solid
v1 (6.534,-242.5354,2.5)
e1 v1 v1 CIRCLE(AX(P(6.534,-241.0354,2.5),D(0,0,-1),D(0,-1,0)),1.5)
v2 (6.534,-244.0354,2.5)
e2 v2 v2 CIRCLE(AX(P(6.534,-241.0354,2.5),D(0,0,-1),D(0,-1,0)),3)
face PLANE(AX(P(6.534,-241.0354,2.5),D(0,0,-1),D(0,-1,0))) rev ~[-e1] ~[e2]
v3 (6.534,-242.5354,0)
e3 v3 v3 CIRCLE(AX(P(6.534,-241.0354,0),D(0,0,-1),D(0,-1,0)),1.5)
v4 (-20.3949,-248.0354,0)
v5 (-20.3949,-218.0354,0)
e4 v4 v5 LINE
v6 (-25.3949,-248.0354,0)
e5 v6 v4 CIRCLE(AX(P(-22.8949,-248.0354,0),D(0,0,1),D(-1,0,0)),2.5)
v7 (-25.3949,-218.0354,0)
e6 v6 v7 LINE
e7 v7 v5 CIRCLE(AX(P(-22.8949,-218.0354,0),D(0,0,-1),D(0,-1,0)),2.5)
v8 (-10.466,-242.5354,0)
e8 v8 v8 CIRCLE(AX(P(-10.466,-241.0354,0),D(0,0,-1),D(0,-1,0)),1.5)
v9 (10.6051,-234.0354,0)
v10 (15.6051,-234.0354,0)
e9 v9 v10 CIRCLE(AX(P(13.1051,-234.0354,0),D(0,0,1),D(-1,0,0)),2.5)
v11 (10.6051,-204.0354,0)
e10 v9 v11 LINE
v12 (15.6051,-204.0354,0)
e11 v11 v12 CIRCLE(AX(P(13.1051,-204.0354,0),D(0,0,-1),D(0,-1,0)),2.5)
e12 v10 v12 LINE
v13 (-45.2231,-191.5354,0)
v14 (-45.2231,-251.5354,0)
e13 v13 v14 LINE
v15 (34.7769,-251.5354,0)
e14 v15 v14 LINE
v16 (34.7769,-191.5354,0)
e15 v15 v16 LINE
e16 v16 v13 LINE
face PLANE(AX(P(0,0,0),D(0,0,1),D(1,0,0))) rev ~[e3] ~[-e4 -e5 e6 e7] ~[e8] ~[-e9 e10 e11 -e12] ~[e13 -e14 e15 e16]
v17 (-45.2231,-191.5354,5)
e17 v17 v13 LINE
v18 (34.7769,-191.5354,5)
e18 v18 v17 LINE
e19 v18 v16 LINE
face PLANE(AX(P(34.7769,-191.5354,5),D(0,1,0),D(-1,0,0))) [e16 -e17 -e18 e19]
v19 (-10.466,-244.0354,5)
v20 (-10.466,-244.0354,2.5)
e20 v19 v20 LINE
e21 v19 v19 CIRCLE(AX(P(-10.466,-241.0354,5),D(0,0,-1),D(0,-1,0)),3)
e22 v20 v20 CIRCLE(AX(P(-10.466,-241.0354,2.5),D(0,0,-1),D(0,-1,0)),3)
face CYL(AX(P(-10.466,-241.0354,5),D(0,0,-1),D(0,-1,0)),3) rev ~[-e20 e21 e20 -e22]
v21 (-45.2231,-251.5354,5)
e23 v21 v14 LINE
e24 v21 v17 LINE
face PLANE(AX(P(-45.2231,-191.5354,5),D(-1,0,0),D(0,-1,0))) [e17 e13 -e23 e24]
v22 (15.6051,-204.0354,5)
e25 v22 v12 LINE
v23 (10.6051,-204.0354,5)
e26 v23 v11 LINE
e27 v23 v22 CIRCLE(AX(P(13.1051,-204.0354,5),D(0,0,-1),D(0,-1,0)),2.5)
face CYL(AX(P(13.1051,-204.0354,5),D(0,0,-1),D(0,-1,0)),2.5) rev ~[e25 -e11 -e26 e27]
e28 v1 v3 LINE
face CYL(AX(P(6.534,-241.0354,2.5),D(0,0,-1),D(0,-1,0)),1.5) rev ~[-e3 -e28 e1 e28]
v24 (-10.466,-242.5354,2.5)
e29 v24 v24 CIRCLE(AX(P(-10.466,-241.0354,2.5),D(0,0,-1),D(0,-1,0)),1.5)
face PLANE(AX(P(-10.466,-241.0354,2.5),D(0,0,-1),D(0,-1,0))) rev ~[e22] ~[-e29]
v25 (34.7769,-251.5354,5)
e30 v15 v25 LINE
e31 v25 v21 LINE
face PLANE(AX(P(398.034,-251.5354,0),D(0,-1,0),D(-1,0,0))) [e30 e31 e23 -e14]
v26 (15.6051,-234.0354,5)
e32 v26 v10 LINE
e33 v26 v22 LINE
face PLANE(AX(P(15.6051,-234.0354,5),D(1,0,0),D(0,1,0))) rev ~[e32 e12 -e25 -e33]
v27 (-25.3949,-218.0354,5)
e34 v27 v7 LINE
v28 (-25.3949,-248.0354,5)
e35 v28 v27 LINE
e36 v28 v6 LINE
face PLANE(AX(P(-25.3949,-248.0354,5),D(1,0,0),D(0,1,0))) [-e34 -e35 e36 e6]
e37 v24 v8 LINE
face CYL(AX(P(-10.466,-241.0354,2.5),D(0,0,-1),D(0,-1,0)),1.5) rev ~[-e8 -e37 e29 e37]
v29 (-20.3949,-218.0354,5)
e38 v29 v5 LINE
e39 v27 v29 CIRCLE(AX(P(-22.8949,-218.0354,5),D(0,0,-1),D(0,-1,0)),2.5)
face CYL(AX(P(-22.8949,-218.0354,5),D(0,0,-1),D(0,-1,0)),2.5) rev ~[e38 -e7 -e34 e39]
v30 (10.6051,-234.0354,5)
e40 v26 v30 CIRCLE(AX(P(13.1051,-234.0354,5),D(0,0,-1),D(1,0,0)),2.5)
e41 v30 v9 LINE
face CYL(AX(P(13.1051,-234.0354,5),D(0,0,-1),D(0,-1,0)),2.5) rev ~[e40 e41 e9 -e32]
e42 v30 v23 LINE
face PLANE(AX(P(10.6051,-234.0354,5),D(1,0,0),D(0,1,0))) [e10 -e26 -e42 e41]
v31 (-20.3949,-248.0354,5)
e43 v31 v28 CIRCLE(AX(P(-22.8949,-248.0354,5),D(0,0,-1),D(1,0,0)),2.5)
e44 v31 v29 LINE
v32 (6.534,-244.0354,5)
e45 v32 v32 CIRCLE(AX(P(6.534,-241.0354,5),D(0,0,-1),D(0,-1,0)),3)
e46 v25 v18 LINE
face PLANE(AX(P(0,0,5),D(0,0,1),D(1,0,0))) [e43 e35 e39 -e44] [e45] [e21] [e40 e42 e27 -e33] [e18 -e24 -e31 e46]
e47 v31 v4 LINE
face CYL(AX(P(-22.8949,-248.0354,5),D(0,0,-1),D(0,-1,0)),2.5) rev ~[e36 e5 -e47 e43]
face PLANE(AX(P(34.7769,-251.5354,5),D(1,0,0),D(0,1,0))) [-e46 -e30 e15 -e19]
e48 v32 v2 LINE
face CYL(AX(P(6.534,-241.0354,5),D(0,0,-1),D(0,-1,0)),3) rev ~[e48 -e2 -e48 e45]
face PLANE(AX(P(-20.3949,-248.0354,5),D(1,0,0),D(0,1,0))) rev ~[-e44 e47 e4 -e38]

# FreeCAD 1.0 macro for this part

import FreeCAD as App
import Part
import Sketcher
from FreeCAD import Vector
Q = App.Units.Quantity


def add_polygon(sketch, points):
    """Adds a closed chain of lines whose ends are joined by coincident constraints."""
    first, n = sketch.GeometryCount, len(points)
    for a, b in zip(points, points[1:] + points[:1]):
        sketch.addGeometry(Part.LineSegment(App.Vector(*a, 0), App.Vector(*b, 0)), False)
    for i in range(n):
        sketch.addConstraint(Sketcher.Constraint("Coincident", first + i, 2, first + (i + 1) % n, 1))

doc = App.newDocument("Part")
params = doc.addObject("Spreadsheet::Sheet", "Params")
for row, (alias, value) in enumerate([
    ("sketch1_width", "800 mm"),
    ("sketch1_height", "500 mm"),
    ("pad1_length", "5 mm"),
    ("sketch2_diameter", "3 mm"),
    ("hole_diameter", "3 mm"),
    ("hole_depth", "5 mm"),
    ("hole_cbore_diameter", "6 mm"),
    ("hole_cbore_depth", "2.5 mm"),
    ("sketch3_diameter", "5 mm"),
    ("hole2_diameter", "5 mm"),
    ("hole2_depth", "15 mm"),
    ("sketch4_height", "30 mm"),
    ("sketch4_width", "5 mm"),
    ("pocket1_length", "15 mm"),
    ("sketch5_diameter", "5 mm"),
    ("hole3_diameter", "5 mm"),
    ("hole3_depth", "15 mm"),
    ("sketch6_width", "80 mm"),
    ("pocket2_length", "15 mm"),
], start=1):
    params.set(f"A{row}", alias)
    params.set(f"B{row}", "=" + value)
    params.setAlias(f"B{row}", alias)

body = doc.addObject("PartDesign::Body", "Body")

sketch1 = doc.addObject("Sketcher::SketchObject", "Sketch")
body.addObject(sketch1)
sketch1.AttachmentSupport = (doc.XY_Plane, [""])
sketch1.MapMode = "FlatFace"
add_polygon(sketch1, [(398, 248), (-402, 248), (-402, -252), (398, -252)])
sketch1.addConstraint([
    Sketcher.Constraint("Horizontal", 0),
    Sketcher.Constraint("Vertical", 1),
    Sketcher.Constraint("Horizontal", 2),
    Sketcher.Constraint("Vertical", 3),
    Sketcher.Constraint("DistanceX", 0, 2, 0, 1, Q("800 mm")),
    Sketcher.Constraint("DistanceY", 1, 2, 1, 1, Q("500 mm")),
    Sketcher.Constraint("DistanceX", 0, 2, -1, 1, Q("401.966 mm")),
    Sketcher.Constraint("DistanceY", -1, 1, 0, 2, Q("248.4646 mm")),
])
sketch1.setExpression("Constraints[8]", "Params.sketch1_width")
sketch1.setExpression("Constraints[9]", "Params.sketch1_height")
pad1 = doc.addObject("PartDesign::Pad", "Pad")
body.addObject(pad1)
pad1.Profile = sketch1
pad1.setExpression("Length", "Params.pad1_length")

sketch2 = doc.addObject("Sketcher::SketchObject", "Sketch001")
body.addObject(sketch2)
sketch2.AttachmentSupport = (doc.XY_Plane, [""])
sketch2.MapMode = "FlatFace"
sketch2.AttachmentOffset = App.Placement(Vector(0, 0, 5), App.Rotation())
sketch2.addGeometry([
    Part.Circle(Vector(6.5, -241, 0), Vector(0, 0, 1), 1.5),
    Part.Circle(Vector(-10.5, -241, 0), Vector(0, 0, 1), 1.5),
], False)
sketch2.addConstraint([
    Sketcher.Constraint("Equal", 0, 1),
    Sketcher.Constraint("Horizontal", 0, 3, 1, 3),
    Sketcher.Constraint("Diameter", 0, Q("3 mm")),
    Sketcher.Constraint("DistanceX", 1, 3, 0, 3, Q("17 mm")),
    Sketcher.Constraint("DistanceX", -1, 1, 0, 3, Q("6.534 mm")),
    Sketcher.Constraint("DistanceY", 0, 3, -1, 1, Q("241.0354 mm")),
])
sketch2.setExpression("Constraints[2]", "Params.sketch2_diameter")
doc.recompute()
hole = doc.addObject("PartDesign::Hole", "Hole")
body.addObject(hole)
hole.Profile = sketch2
hole.ThreadType = "None"
hole.setExpression("Diameter", "Params.hole_diameter")
hole.DepthType = "Dimension"
hole.setExpression("Depth", "Params.hole_depth")
hole.DrillPoint = "Angled"
hole.DrillPointAngle = 118
hole.HoleCutType = "Counterbore"
hole.setExpression("HoleCutDiameter", "Params.hole_cbore_diameter")
hole.setExpression("HoleCutDepth", "Params.hole_cbore_depth")

sketch3 = doc.addObject("Sketcher::SketchObject", "Sketch002")
body.addObject(sketch3)
sketch3.AttachmentSupport = (doc.XY_Plane, [""])
sketch3.MapMode = "FlatFace"
sketch3.AttachmentOffset = App.Placement(Vector(0, 0, 5), App.Rotation())
sketch3.addGeometry([
    Part.Circle(Vector(-22.9, -248, 0), Vector(0, 0, 1), 2.5),
    Part.Circle(Vector(13.1, -234, 0), Vector(0, 0, 1), 2.5),
], False)
sketch3.addConstraint([
    Sketcher.Constraint("Equal", 0, 1),
    Sketcher.Constraint("Diameter", 0, Q("5 mm")),
    Sketcher.Constraint("DistanceX", 0, 3, 1, 3, Q("36 mm")),
    Sketcher.Constraint("DistanceY", 0, 3, 1, 3, Q("14 mm")),
    Sketcher.Constraint("DistanceX", 0, 3, -1, 1, Q("22.895 mm")),
    Sketcher.Constraint("DistanceY", 0, 3, -1, 1, Q("248.0354 mm")),
])
sketch3.setExpression("Constraints[1]", "Params.sketch3_diameter")
doc.recompute()
hole2 = doc.addObject("PartDesign::Hole", "Hole001")
body.addObject(hole2)
hole2.Profile = sketch3
hole2.ThreadType = "None"
hole2.setExpression("Diameter", "Params.hole2_diameter")
hole2.DepthType = "Dimension"
hole2.setExpression("Depth", "Params.hole2_depth")
hole2.DrillPoint = "Angled"
hole2.DrillPointAngle = 118

sketch4 = doc.addObject("Sketcher::SketchObject", "Sketch003")
body.addObject(sketch4)
sketch4.AttachmentSupport = (doc.XY_Plane, [""])
sketch4.MapMode = "FlatFace"
sketch4.AttachmentOffset = App.Placement(Vector(0, 0, 5), App.Rotation())
add_polygon(sketch4, [(11, -234), (16, -234), (16, -204), (11, -204)])
add_polygon(sketch4, [(-20, -248), (-20, -218), (-25, -218), (-25, -248)])
sketch4.addConstraint([
    Sketcher.Constraint("Horizontal", 0),
    Sketcher.Constraint("Vertical", 1),
    Sketcher.Constraint("Horizontal", 2),
    Sketcher.Constraint("Vertical", 3),
    Sketcher.Constraint("Vertical", 4),
    Sketcher.Constraint("Horizontal", 5),
    Sketcher.Constraint("Vertical", 6),
    Sketcher.Constraint("Horizontal", 7),
    Sketcher.Constraint("Equal", 2, 5),
    Sketcher.Constraint("Equal", 3, 4),
    Sketcher.Constraint("DistanceY", 1, 1, 1, 2, Q("30 mm")),
    Sketcher.Constraint("DistanceY", 4, 2, 2, 2, Q("14 mm")),
    Sketcher.Constraint("DistanceX", 4, 2, 1, 2, Q("36 mm")),
    Sketcher.Constraint("DistanceX", 0, 1, 0, 2, Q("5 mm")),
    Sketcher.Constraint("DistanceX", -1, 1, 0, 2, Q("15.605 mm")),
    Sketcher.Constraint("DistanceY", 0, 2, -1, 1, Q("234.0354 mm")),
])
sketch4.setExpression("Constraints[18]", "Params.sketch4_height")
sketch4.setExpression("Constraints[21]", "Params.sketch4_width")
pocket1 = doc.addObject("PartDesign::Pocket", "Pocket")
body.addObject(pocket1)
pocket1.Profile = sketch4
pocket1.setExpression("Length", "Params.pocket1_length")

sketch5 = doc.addObject("Sketcher::SketchObject", "Sketch004")
body.addObject(sketch5)
sketch5.AttachmentSupport = (doc.XY_Plane, [""])
sketch5.MapMode = "FlatFace"
sketch5.AttachmentOffset = App.Placement(Vector(0, 0, 5), App.Rotation())
sketch5.addGeometry([
    Part.Circle(Vector(-22.9, -218, 0), Vector(0, 0, 1), 2.5),
    Part.Circle(Vector(13.1, -204, 0), Vector(0, 0, 1), 2.5),
], False)
sketch5.addConstraint([
    Sketcher.Constraint("Equal", 0, 1),
    Sketcher.Constraint("Diameter", 0, Q("5 mm")),
    Sketcher.Constraint("DistanceX", 0, 3, 1, 3, Q("36 mm")),
    Sketcher.Constraint("DistanceY", 0, 3, 1, 3, Q("14 mm")),
    Sketcher.Constraint("DistanceX", 0, 3, -1, 1, Q("22.895 mm")),
    Sketcher.Constraint("DistanceY", 0, 3, -1, 1, Q("218.0354 mm")),
])
sketch5.setExpression("Constraints[1]", "Params.sketch5_diameter")
doc.recompute()
hole3 = doc.addObject("PartDesign::Hole", "Hole002")
body.addObject(hole3)
hole3.Profile = sketch5
hole3.ThreadType = "None"
hole3.setExpression("Diameter", "Params.hole3_diameter")
hole3.DepthType = "Dimension"
hole3.setExpression("Depth", "Params.hole3_depth")
hole3.DrillPoint = "Angled"
hole3.DrillPointAngle = 118

sketch6 = doc.addObject("Sketcher::SketchObject", "Sketch005")
body.addObject(sketch6)
sketch6.AttachmentSupport = (doc.XY_Plane, [""])
sketch6.MapMode = "FlatFace"
sketch6.AttachmentOffset = App.Placement(Vector(0, 0, 5), App.Rotation())
add_polygon(sketch6, [(35, -192), (35, -325), (472, -325), (472, 309), (-45, 309), (-45, 276), (-472, 276), (-472, -298), (-45, -298), (-45, -192)])
sketch6.addConstraint([
    Sketcher.Constraint("Vertical", 0),
    Sketcher.Constraint("Horizontal", 1),
    Sketcher.Constraint("Vertical", 2),
    Sketcher.Constraint("Horizontal", 3),
    Sketcher.Constraint("Vertical", 4),
    Sketcher.Constraint("Horizontal", 5),
    Sketcher.Constraint("Vertical", 6),
    Sketcher.Constraint("Horizontal", 7),
    Sketcher.Constraint("Vertical", 8),
    Sketcher.Constraint("Horizontal", 9),
    Sketcher.Constraint("Vertical", 4, 2, 7, 2),
    Sketcher.Constraint("DistanceX", 9, 1, 9, 2, Q("80 mm")),
    Sketcher.Constraint("DistanceX", 1, 1, 1, 2, Q("437.038 mm")),
    Sketcher.Constraint("DistanceY", 0, 2, 0, 1, Q("133.089 mm")),
    Sketcher.Constraint("DistanceY", 2, 1, 2, 2, Q("633.144 mm")),
    Sketcher.Constraint("DistanceY", 4, 2, 4, 1, Q("32.469 mm")),
    Sketcher.Constraint("DistanceX", 5, 2, 5, 1, Q("426.3646 mm")),
    Sketcher.Constraint("DistanceY", 6, 2, 6, 1, Q("573.6176 mm")),
    Sketcher.Constraint("DistanceX", -1, 1, 0, 2, Q("34.777 mm")),
    Sketcher.Constraint("DistanceY", 6, 2, -1, 1, Q("297.567 mm")),
])
sketch6.setExpression("Constraints[21]", "Params.sketch6_width")
pocket2 = doc.addObject("PartDesign::Pocket", "Pocket001")
body.addObject(pocket2)
pocket2.Profile = sketch6
pocket2.setExpression("Length", "Params.pocket2_length")

doc.recompute()
